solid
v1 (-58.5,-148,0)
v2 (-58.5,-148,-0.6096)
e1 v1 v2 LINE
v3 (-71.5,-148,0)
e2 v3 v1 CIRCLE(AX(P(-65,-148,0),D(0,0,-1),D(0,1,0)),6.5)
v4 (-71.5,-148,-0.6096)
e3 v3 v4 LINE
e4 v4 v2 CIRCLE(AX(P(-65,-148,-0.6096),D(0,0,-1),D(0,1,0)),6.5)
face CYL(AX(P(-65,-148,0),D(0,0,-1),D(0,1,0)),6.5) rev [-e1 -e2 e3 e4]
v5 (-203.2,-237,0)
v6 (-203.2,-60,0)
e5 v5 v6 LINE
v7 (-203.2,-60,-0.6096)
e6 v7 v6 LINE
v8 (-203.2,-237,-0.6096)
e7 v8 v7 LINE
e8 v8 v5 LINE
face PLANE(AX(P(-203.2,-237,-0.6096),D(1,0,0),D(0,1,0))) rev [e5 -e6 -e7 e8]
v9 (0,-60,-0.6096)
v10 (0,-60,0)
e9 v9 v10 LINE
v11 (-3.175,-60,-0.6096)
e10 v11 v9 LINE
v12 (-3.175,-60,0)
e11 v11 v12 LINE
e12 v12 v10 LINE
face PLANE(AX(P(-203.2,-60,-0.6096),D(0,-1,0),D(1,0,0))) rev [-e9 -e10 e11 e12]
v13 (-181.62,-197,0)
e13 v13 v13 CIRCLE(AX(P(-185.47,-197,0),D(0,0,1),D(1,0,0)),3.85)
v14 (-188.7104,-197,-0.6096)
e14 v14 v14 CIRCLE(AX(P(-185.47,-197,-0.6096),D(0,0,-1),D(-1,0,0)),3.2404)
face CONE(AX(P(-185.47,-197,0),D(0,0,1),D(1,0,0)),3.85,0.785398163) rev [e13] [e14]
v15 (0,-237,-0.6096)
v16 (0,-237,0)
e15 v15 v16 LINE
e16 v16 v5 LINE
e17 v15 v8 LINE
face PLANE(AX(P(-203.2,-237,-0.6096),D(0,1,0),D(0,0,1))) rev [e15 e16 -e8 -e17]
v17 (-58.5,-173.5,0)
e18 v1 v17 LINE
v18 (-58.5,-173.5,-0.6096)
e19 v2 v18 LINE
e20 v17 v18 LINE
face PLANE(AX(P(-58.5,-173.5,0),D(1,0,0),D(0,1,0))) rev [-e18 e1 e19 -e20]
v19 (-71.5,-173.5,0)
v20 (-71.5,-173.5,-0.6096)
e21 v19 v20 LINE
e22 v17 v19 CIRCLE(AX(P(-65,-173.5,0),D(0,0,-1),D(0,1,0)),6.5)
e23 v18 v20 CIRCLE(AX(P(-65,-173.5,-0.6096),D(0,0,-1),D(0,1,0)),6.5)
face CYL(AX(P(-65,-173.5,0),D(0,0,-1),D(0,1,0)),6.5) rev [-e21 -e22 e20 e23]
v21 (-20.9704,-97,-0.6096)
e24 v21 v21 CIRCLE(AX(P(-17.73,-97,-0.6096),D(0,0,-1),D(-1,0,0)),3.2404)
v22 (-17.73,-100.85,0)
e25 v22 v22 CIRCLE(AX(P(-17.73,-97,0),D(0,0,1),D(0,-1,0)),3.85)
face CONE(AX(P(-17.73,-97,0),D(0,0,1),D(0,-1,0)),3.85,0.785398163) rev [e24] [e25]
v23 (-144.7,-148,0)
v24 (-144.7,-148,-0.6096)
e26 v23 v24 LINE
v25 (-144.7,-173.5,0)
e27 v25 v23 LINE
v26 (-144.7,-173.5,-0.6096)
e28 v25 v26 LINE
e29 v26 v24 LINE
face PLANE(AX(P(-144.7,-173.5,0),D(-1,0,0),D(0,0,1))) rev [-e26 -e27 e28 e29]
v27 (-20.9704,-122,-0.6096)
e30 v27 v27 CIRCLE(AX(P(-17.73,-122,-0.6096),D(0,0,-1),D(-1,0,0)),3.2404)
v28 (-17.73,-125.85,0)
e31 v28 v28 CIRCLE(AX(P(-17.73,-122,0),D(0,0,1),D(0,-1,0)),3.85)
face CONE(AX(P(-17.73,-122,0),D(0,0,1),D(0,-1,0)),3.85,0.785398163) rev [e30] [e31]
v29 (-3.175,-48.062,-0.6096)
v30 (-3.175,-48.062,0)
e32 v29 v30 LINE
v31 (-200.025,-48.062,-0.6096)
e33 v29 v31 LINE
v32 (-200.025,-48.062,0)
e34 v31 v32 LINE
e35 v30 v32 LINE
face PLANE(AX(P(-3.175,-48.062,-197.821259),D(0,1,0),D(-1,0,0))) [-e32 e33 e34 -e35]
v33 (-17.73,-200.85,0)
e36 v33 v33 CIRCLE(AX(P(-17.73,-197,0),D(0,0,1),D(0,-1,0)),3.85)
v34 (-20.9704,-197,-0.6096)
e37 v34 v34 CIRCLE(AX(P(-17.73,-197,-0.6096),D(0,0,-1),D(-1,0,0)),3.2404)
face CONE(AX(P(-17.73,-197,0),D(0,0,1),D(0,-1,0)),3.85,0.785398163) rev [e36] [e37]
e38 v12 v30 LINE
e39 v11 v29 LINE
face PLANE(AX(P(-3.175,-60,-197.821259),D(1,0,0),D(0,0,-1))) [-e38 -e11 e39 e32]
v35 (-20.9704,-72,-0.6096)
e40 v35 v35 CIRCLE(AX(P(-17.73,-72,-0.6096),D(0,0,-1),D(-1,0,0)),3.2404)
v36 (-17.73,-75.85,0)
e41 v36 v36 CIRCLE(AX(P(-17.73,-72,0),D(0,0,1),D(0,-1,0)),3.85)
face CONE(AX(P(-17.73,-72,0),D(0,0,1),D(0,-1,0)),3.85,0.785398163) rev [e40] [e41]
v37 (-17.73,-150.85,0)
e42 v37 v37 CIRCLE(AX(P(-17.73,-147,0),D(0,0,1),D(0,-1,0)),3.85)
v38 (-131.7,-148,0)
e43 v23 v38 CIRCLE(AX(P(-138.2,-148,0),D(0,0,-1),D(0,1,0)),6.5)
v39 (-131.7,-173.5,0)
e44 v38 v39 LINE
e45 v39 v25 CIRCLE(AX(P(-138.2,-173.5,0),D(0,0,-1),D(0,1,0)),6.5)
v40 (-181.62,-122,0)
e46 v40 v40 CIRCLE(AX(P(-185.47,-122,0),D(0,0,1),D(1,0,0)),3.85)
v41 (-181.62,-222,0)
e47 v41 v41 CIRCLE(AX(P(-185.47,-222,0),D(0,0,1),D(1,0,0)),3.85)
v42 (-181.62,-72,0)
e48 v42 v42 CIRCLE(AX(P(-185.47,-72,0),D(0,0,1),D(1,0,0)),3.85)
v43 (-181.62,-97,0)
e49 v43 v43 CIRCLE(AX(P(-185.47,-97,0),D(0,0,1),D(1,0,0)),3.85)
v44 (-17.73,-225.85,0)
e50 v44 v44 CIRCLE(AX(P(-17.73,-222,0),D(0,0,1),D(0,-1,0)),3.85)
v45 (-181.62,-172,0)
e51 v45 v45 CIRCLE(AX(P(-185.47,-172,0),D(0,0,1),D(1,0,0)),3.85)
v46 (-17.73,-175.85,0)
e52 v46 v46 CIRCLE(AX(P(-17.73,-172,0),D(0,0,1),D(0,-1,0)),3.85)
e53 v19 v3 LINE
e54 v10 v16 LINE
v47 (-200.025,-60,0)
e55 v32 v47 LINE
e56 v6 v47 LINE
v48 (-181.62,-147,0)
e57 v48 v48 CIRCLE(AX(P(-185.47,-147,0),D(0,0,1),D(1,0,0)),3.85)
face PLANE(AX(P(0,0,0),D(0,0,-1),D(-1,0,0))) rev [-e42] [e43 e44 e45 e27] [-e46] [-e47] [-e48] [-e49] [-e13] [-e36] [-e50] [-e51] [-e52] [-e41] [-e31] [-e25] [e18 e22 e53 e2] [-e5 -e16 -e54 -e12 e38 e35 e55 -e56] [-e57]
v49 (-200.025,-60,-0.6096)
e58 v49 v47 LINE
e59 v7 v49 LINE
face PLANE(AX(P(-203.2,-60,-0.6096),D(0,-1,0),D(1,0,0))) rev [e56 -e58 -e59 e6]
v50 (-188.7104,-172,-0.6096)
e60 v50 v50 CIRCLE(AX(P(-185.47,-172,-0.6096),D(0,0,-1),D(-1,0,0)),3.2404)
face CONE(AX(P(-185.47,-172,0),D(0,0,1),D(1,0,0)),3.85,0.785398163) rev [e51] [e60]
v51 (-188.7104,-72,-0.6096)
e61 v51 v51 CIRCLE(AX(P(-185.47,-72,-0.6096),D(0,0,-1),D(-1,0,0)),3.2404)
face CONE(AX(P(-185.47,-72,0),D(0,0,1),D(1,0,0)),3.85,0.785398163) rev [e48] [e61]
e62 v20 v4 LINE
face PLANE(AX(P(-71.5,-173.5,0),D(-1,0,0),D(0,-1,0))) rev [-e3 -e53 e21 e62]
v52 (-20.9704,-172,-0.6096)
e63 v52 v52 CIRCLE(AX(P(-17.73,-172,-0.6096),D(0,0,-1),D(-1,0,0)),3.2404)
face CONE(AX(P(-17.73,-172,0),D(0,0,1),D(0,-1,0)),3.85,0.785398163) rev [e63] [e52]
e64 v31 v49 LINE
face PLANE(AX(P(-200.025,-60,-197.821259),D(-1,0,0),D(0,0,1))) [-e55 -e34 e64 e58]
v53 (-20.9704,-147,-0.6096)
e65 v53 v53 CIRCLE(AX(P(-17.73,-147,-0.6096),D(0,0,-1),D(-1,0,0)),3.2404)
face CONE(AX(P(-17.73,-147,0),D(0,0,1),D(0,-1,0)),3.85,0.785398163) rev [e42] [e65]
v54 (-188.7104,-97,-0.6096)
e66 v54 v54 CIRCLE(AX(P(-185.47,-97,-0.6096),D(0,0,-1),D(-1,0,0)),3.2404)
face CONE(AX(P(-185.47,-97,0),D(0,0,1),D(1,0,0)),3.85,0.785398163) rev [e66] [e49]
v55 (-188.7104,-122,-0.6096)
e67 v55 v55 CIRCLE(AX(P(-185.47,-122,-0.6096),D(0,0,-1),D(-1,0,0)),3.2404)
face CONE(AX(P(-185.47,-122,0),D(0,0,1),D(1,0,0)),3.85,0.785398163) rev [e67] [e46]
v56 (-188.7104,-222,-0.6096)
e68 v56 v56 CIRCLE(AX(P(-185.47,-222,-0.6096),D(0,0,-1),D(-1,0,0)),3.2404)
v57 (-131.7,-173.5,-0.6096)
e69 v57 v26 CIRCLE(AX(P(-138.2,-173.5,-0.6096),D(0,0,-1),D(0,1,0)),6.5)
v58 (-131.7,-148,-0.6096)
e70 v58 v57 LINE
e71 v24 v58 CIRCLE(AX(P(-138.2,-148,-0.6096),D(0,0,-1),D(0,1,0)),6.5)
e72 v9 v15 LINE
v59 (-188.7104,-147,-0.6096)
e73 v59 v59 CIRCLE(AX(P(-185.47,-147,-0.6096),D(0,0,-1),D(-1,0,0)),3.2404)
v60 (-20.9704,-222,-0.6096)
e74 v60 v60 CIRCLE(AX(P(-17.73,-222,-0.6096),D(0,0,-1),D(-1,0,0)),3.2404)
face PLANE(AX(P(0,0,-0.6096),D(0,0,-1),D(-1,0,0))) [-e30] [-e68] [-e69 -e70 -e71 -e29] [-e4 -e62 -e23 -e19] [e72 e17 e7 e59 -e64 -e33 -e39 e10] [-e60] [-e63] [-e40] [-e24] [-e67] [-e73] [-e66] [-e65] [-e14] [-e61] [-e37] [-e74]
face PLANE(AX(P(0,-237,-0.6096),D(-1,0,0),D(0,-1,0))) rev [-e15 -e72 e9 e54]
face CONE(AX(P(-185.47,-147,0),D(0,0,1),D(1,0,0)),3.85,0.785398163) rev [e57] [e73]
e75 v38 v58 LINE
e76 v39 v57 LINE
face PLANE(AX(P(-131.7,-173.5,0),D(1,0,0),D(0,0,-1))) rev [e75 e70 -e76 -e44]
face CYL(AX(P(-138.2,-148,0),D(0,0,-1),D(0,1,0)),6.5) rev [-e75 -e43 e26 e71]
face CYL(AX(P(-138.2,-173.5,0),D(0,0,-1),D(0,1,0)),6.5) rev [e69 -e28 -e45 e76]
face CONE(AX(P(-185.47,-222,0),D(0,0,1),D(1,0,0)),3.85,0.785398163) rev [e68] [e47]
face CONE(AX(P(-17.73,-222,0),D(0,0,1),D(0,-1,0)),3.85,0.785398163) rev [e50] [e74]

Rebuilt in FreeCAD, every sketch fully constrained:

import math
import FreeCAD as App
import Part
import Sketcher
from FreeCAD import Vector
Q = App.Units.Quantity


def add_polygon(sketch, points):
    """Adds a closed chain of lines whose ends are joined by coincident constraints."""
    first, n = sketch.GeometryCount, len(points)
    for a, b in zip(points, points[1:] + points[:1]):
        sketch.addGeometry(Part.LineSegment(App.Vector(*a, 0), App.Vector(*b, 0)), False)
    for i in range(n):
        sketch.addConstraint(Sketcher.Constraint("Coincident", first + i, 2, first + (i + 1) % n, 1))

doc = App.newDocument("Part")
params = doc.addObject("Spreadsheet::Sheet", "Params")
for row, (alias, value) in enumerate([
    ("sketch1_height", "177 mm"),
    ("sketch1_width", "203.2 mm"),
    ("pad1_length", "0.6096 mm"),
    ("sketch2_radius", "6.5 mm"),
    ("sketch2_height", "25.5 mm"),
    ("sketch3_width", "196.85 mm"),
    ("pad2_length", "12 mm"),
    ("sketch4_width", "196.85 mm"),
    ("pad3_length", "0.6096 mm"),
    ("sketch5_width", "196.85 mm"),
    ("pocket2_length", "12 mm"),
    ("sketch6_width", "1.7 mm"),
    ("sketch6_width2", "3.85 mm"),
    ("groove_angle", "360 deg"),
    ("linearpattern_pitch", "25 mm"),
    ("linearpattern2_pitch", "50 mm"),
    ("linearpattern3_pitch", "75 mm"),
    ("linearpattern4_pitch", "100 mm"),
    ("linearpattern5_pitch", "125 mm"),
    ("linearpattern6_pitch", "150 mm"),
    ("sketch7_width", "1.7 mm"),
    ("sketch7_width2", "3.85 mm"),
    ("groove2_angle", "360 deg"),
    ("sketch8_width", "1.7 mm"),
    ("sketch8_width2", "3.85 mm"),
    ("groove3_angle", "360 deg"),
    ("sketch9_width", "1.7 mm"),
    ("sketch9_width2", "3.85 mm"),
    ("groove4_angle", "360 deg"),
    ("sketch10_width", "1.7 mm"),
    ("sketch10_width2", "3.85 mm"),
    ("groove5_angle", "360 deg"),
    ("sketch11_width", "1.7 mm"),
    ("sketch11_width2", "3.85 mm"),
    ("groove6_angle", "360 deg"),
    ("sketch12_width", "1.7 mm"),
    ("sketch12_width2", "3.85 mm"),
    ("groove7_angle", "360 deg"),
], start=1):
    params.set(f"A{row}", alias)
    params.set(f"B{row}", "=" + value)
    params.setAlias(f"B{row}", alias)

body = doc.addObject("PartDesign::Body", "Body")

# Sketch on XY plane
sketch1 = body.newObject("Sketcher::SketchObject", "Sketch")
sketch1.AttachmentSupport = (doc.getObject("XY_Plane"), [""])
sketch1.MapMode = "FlatFace"
add_polygon(sketch1, [(-203, -237), (-203, -60), (0, -60), (0, -237)])  # lines 0-3
sketch1.addConstraint(Sketcher.Constraint("Vertical", 0))
sketch1.addConstraint(Sketcher.Constraint("Horizontal", 1))
sketch1.addConstraint(Sketcher.Constraint("Vertical", 2))
sketch1.addConstraint(Sketcher.Constraint("Horizontal", 3))
sketch1.addConstraint(Sketcher.Constraint("PointOnObject", 1, 2, -2))
sketch1.addConstraint(Sketcher.Constraint("DistanceY", 0, 1, 0, 2, 177.0))
sketch1.addConstraint(Sketcher.Constraint("DistanceX", 1, 1, 1, 2, 203.2))
sketch1.addConstraint(Sketcher.Constraint("DistanceY", 0, 2, -1, 1, 60.0))
sketch1.setExpression("Constraints[9]", "Params.sketch1_height")
sketch1.setExpression("Constraints[10]", "Params.sketch1_width")
pad1 = body.newObject("PartDesign::Pad", "Pad")
pad1.Profile = sketch1
pad1.setExpression("Length", "Params.pad1_length")
pad1.Reversed = True

# Sketch on XY plane
sketch2 = body.newObject("Sketcher::SketchObject", "Sketch001")
sketch2.AttachmentSupport = (doc.getObject("XY_Plane"), [""])
sketch2.MapMode = "FlatFace"
sketch2.AttachmentOffset = App.Placement(Vector(0, 0, -0.6096), App.Rotation())
sketch2.addGeometry(Part.LineSegment(Vector(-132, -148, 0), Vector(-132, -174, 0)), False)
sketch2.addGeometry(Part.ArcOfCircle(Part.Circle(Vector(-138, -174, 0), Vector(0, 0, 1), 6), math.radians(180), math.radians(360)), False)
sketch2.addGeometry(Part.LineSegment(Vector(-145, -174, 0), Vector(-145, -148, 0)), False)
sketch2.addGeometry(Part.ArcOfCircle(Part.Circle(Vector(-138, -148, 0), Vector(0, 0, 1), 6), math.radians(0), math.radians(180)), False)
sketch2.addGeometry(Part.LineSegment(Vector(-58, -148, 0), Vector(-58, -174, 0)), False)
sketch2.addGeometry(Part.ArcOfCircle(Part.Circle(Vector(-65, -174, 0), Vector(0, 0, 1), 6), math.radians(180), math.radians(360)), False)
sketch2.addGeometry(Part.LineSegment(Vector(-72, -174, 0), Vector(-72, -148, 0)), False)
sketch2.addGeometry(Part.ArcOfCircle(Part.Circle(Vector(-65, -148, 0), Vector(0, 0, 1), 6), math.radians(0), math.radians(180)), False)
sketch2.addConstraint(Sketcher.Constraint("Tangent", 0, 2, 1, 2))
sketch2.addConstraint(Sketcher.Constraint("Tangent", 1, 1, 2, 1))
sketch2.addConstraint(Sketcher.Constraint("Tangent", 2, 2, 3, 2))
sketch2.addConstraint(Sketcher.Constraint("Tangent", 3, 1, 0, 1))
sketch2.addConstraint(Sketcher.Constraint("Tangent", 4, 2, 5, 2))
sketch2.addConstraint(Sketcher.Constraint("Tangent", 5, 1, 6, 1))
sketch2.addConstraint(Sketcher.Constraint("Tangent", 6, 2, 7, 2))
sketch2.addConstraint(Sketcher.Constraint("Tangent", 7, 1, 4, 1))
sketch2.addConstraint(Sketcher.Constraint("Vertical", 0))
sketch2.addConstraint(Sketcher.Constraint("Vertical", 2))
sketch2.addConstraint(Sketcher.Constraint("Vertical", 4))
sketch2.addConstraint(Sketcher.Constraint("Vertical", 6))
sketch2.addConstraint(Sketcher.Constraint("Equal", 3, 5))
sketch2.addConstraint(Sketcher.Constraint("Horizontal", 1, 3, 5, 3))
sketch2.addConstraint(Sketcher.Constraint("Horizontal", 3, 3, 7, 3))
sketch2.addConstraint(Sketcher.Constraint("Radius", 1, 6.5))
sketch2.addConstraint(Sketcher.Constraint("DistanceY", 0, 2, 0, 1, 25.5))
sketch2.addConstraint(Sketcher.Constraint("DistanceY", 3, 3, -1, 1, 148.0))
sketch2.addConstraint(Sketcher.Constraint("DistanceX", 5, 3, -1, 1, 65.0))
sketch2.addConstraint(Sketcher.Constraint("DistanceX", 1, 3, -1, 1, 138.2))
sketch2.setExpression("Constraints[15]", "Params.sketch2_radius")
sketch2.setExpression("Constraints[16]", "Params.sketch2_height")
pocket1 = body.newObject("PartDesign::Pocket", "Pocket")
pocket1.Profile = sketch2
pocket1.Type = "ThroughAll"
pocket1.Reversed = True

# Sketch on XY plane
sketch3 = body.newObject("Sketcher::SketchObject", "Sketch002")
sketch3.AttachmentSupport = (doc.getObject("XY_Plane"), [""])
sketch3.MapMode = "FlatFace"
add_polygon(sketch3, [(-200, -60), (-200, -60.6), (-3.2, -60.6), (-3.2, -60)])  # lines 0-3
sketch3.addConstraint(Sketcher.Constraint("Vertical", 0))
sketch3.addConstraint(Sketcher.Constraint("Horizontal", 1))
sketch3.addConstraint(Sketcher.Constraint("Vertical", 2))
sketch3.addConstraint(Sketcher.Constraint("Horizontal", 3))
sketch3.addConstraint(Sketcher.Constraint("DistanceY", 2, 2, -1, 1, 60.0))
sketch3.addConstraint(Sketcher.Constraint("DistanceX", 1, 1, 1, 2, 196.85))
sketch3.addConstraint(Sketcher.Constraint("DistanceY", 0, 2, 0, 1, 0.6096))
sketch3.addConstraint(Sketcher.Constraint("DistanceX", 0, 2, -1, 1, 200.025))
sketch3.setExpression("Constraints[9]", "Params.sketch3_width")
pad2 = body.newObject("PartDesign::Pad", "Pad001")
pad2.Profile = sketch3
pad2.setExpression("Length", "Params.pad2_length")

# Sketch on XY plane
sketch4 = body.newObject("Sketcher::SketchObject", "Sketch003")
sketch4.AttachmentSupport = (doc.getObject("XY_Plane"), [""])
sketch4.MapMode = "FlatFace"
add_polygon(sketch4, [(-200, -48), (-200, -60), (-3, -60), (-3, -48)])  # lines 0-3
sketch4.addConstraint(Sketcher.Constraint("Vertical", 0))
sketch4.addConstraint(Sketcher.Constraint("Horizontal", 1))
sketch4.addConstraint(Sketcher.Constraint("Vertical", 2))
sketch4.addConstraint(Sketcher.Constraint("Horizontal", 3))
sketch4.addConstraint(Sketcher.Constraint("DistanceY", 0, 2, -1, 1, 60.0))
sketch4.addConstraint(Sketcher.Constraint("DistanceX", 1, 1, 1, 2, 196.85))
sketch4.addConstraint(Sketcher.Constraint("DistanceY", 0, 2, 0, 1, 11.938))
sketch4.addConstraint(Sketcher.Constraint("DistanceX", 0, 2, -1, 1, 200.025))
sketch4.setExpression("Constraints[9]", "Params.sketch4_width")
pad3 = body.newObject("PartDesign::Pad", "Pad002")
pad3.Profile = sketch4
pad3.setExpression("Length", "Params.pad3_length")
pad3.Reversed = True

# Sketch on XY plane
sketch5 = body.newObject("Sketcher::SketchObject", "Sketch004")
sketch5.AttachmentSupport = (doc.getObject("XY_Plane"), [""])
sketch5.MapMode = "FlatFace"
sketch5.AttachmentOffset = App.Placement(Vector(0, 0, 12), App.Rotation())
add_polygon(sketch5, [(-200, -60), (-200, -60.6), (-3.2, -60.6), (-3.2, -60)])  # lines 0-3
sketch5.addConstraint(Sketcher.Constraint("Vertical", 0))
sketch5.addConstraint(Sketcher.Constraint("Horizontal", 1))
sketch5.addConstraint(Sketcher.Constraint("Vertical", 2))
sketch5.addConstraint(Sketcher.Constraint("Horizontal", 3))
sketch5.addConstraint(Sketcher.Constraint("DistanceY", 2, 2, -1, 1, 60.0))
sketch5.addConstraint(Sketcher.Constraint("DistanceX", 1, 1, 1, 2, 196.85))
sketch5.addConstraint(Sketcher.Constraint("DistanceY", 0, 2, 0, 1, 0.6096))
sketch5.addConstraint(Sketcher.Constraint("DistanceX", 0, 2, -1, 1, 200.025))
sketch5.setExpression("Constraints[9]", "Params.sketch5_width")
pocket2 = body.newObject("PartDesign::Pocket", "Pocket001")
pocket2.Profile = sketch5
pocket2.setExpression("Length", "Params.pocket2_length")

# Sketch on YZ plane
sketch6 = body.newObject("Sketcher::SketchObject", "Sketch005")
sketch6.AttachmentSupport = (doc.getObject("YZ_Plane"), [""])
sketch6.MapMode = "FlatFace"
sketch6.AttachmentOffset = App.Placement(Vector(0, 0, -185.47), App.Rotation())
add_polygon(sketch6, [(-222, -0.6), (-222, 0), (-225.8, 0), (-223.7, -2.1), (-223.7, -0.6)])  # lines 0-4
sketch6.addGeometry(Part.LineSegment(Vector(-222, 0, 0), Vector(-222, -2.1, 0)), True)  # axis
sketch6.addConstraint(Sketcher.Constraint("Vertical", 0))
sketch6.addConstraint(Sketcher.Constraint("Horizontal", 1))
sketch6.addConstraint(Sketcher.Constraint("Vertical", 3))
sketch6.addConstraint(Sketcher.Constraint("Horizontal", 4))
sketch6.addConstraint(Sketcher.Constraint("Vertical", 5))
sketch6.addConstraint(Sketcher.Constraint("Coincident", 5, 1, 0, 2))
sketch6.addConstraint(Sketcher.Constraint("PointOnObject", 0, 2, -1))
sketch6.addConstraint(Sketcher.Constraint("Horizontal", 2, 2, 5, 2))
sketch6.addConstraint(Sketcher.Constraint("Angle", 2, Q("-45 deg")))
sketch6.addConstraint(Sketcher.Constraint("DistanceX", 4, 1, 4, 2, 1.7))
sketch6.addConstraint(Sketcher.Constraint("DistanceX", 0, 2, -1, 1, 222.0))
sketch6.addConstraint(Sketcher.Constraint("DistanceX", 1, 2, 1, 1, 3.85))
sketch6.addConstraint(Sketcher.Constraint("DistanceY", 0, 1, 0, 2, 0.6096))
sketch6.setExpression("Constraints[14]", "Params.sketch6_width")
sketch6.setExpression("Constraints[16]", "Params.sketch6_width2")
groove = body.newObject("PartDesign::Groove", "Groove")
groove.Profile = sketch6
groove.ReferenceAxis = (sketch6, ["Axis0"])
groove.setExpression("Angle", "Params.groove_angle")
doc.recompute()

linearpattern = body.newObject("PartDesign::LinearPattern", "LinearPattern")
linearpattern.Originals = [groove]
linearpattern.Direction = (doc.getObject("Y_Axis"), [""])
linearpattern.Mode = "offset"
linearpattern.setExpression("Offset", "Params.linearpattern_pitch")
linearpattern.Occurrences = 2
body.Tip = linearpattern
doc.recompute()

linearpattern2 = body.newObject("PartDesign::LinearPattern", "LinearPattern001")
linearpattern2.Originals = [groove]
linearpattern2.Direction = (doc.getObject("Y_Axis"), [""])
linearpattern2.Mode = "offset"
linearpattern2.setExpression("Offset", "Params.linearpattern2_pitch")
linearpattern2.Occurrences = 2
body.Tip = linearpattern2
doc.recompute()

linearpattern3 = body.newObject("PartDesign::LinearPattern", "LinearPattern002")
linearpattern3.Originals = [groove]
linearpattern3.Direction = (doc.getObject("Y_Axis"), [""])
linearpattern3.Mode = "offset"
linearpattern3.setExpression("Offset", "Params.linearpattern3_pitch")
linearpattern3.Occurrences = 2
body.Tip = linearpattern3
doc.recompute()

linearpattern4 = body.newObject("PartDesign::LinearPattern", "LinearPattern003")
linearpattern4.Originals = [groove]
linearpattern4.Direction = (doc.getObject("Y_Axis"), [""])
linearpattern4.Mode = "offset"
linearpattern4.setExpression("Offset", "Params.linearpattern4_pitch")
linearpattern4.Occurrences = 2
body.Tip = linearpattern4
doc.recompute()

linearpattern5 = body.newObject("PartDesign::LinearPattern", "LinearPattern004")
linearpattern5.Originals = [groove]
linearpattern5.Direction = (doc.getObject("Y_Axis"), [""])
linearpattern5.Mode = "offset"
linearpattern5.setExpression("Offset", "Params.linearpattern5_pitch")
linearpattern5.Occurrences = 2
body.Tip = linearpattern5
doc.recompute()

linearpattern6 = body.newObject("PartDesign::LinearPattern", "LinearPattern005")
linearpattern6.Originals = [groove]
linearpattern6.Direction = (doc.getObject("Y_Axis"), [""])
linearpattern6.Mode = "offset"
linearpattern6.setExpression("Offset", "Params.linearpattern6_pitch")
linearpattern6.Occurrences = 2
body.Tip = linearpattern6
doc.recompute()

datumplane = body.newObject("PartDesign::Plane", "DatumPlane")
datumplane.AttachmentSupport = (doc.getObject("YZ_Plane"), [""])
datumplane.MapMode = "FlatFace"
datumplane.AttachmentOffset = App.Placement(Vector(0, 0, -101.6), App.Rotation())
mirrored = body.newObject("PartDesign::Mirrored", "Mirrored")
mirrored.Originals = [groove]
mirrored.MirrorPlane = (datumplane, [""])
body.Tip = mirrored

# Sketch on YZ plane
sketch7 = body.newObject("Sketcher::SketchObject", "Sketch006")
sketch7.AttachmentSupport = (doc.getObject("YZ_Plane"), [""])
sketch7.MapMode = "FlatFace"
sketch7.AttachmentOffset = App.Placement(Vector(0, 0, -17.73), App.Rotation())
add_polygon(sketch7, [(-197, 0), (-197, -0.6), (-198.7, -0.6), (-198.7, -2.1), (-200.9, 0)])  # lines 0-4
sketch7.addGeometry(Part.LineSegment(Vector(-197, -2.1, 0), Vector(-197, 0, 0)), True)  # axis
sketch7.addConstraint(Sketcher.Constraint("Vertical", 0))
sketch7.addConstraint(Sketcher.Constraint("Horizontal", 1))
sketch7.addConstraint(Sketcher.Constraint("Vertical", 2))
sketch7.addConstraint(Sketcher.Constraint("Horizontal", 4))
sketch7.addConstraint(Sketcher.Constraint("Vertical", 5))
sketch7.addConstraint(Sketcher.Constraint("Coincident", 5, 2, 4, 2))
sketch7.addConstraint(Sketcher.Constraint("PointOnObject", 3, 2, -1))
sketch7.addConstraint(Sketcher.Constraint("Horizontal", 2, 2, 5, 1))
sketch7.addConstraint(Sketcher.Constraint("Angle", 3, Q("135 deg")))
sketch7.addConstraint(Sketcher.Constraint("DistanceX", 1, 2, 1, 1, 1.7))
sketch7.addConstraint(Sketcher.Constraint("DistanceX", 0, 2, -1, 1, 197.0))
sketch7.addConstraint(Sketcher.Constraint("DistanceX", 4, 1, 4, 2, 3.85))
sketch7.addConstraint(Sketcher.Constraint("DistanceY", 0, 2, 0, 1, 0.6096))
sketch7.setExpression("Constraints[14]", "Params.sketch7_width")
sketch7.setExpression("Constraints[16]", "Params.sketch7_width2")
groove2 = body.newObject("PartDesign::Groove", "Groove001")
groove2.Profile = sketch7
groove2.ReferenceAxis = (sketch7, ["Axis0"])
groove2.setExpression("Angle", "Params.groove2_angle")

# Sketch on YZ plane
sketch8 = body.newObject("Sketcher::SketchObject", "Sketch007")
sketch8.AttachmentSupport = (doc.getObject("YZ_Plane"), [""])
sketch8.MapMode = "FlatFace"
sketch8.AttachmentOffset = App.Placement(Vector(0, 0, -17.73), App.Rotation())
add_polygon(sketch8, [(-172, 0), (-172, -0.6), (-173.7, -0.6), (-173.7, -2.1), (-175.9, 0)])  # lines 0-4
sketch8.addGeometry(Part.LineSegment(Vector(-172, -2.1, 0), Vector(-172, 0, 0)), True)  # axis
sketch8.addConstraint(Sketcher.Constraint("Vertical", 0))
sketch8.addConstraint(Sketcher.Constraint("Horizontal", 1))
sketch8.addConstraint(Sketcher.Constraint("Vertical", 2))
sketch8.addConstraint(Sketcher.Constraint("Horizontal", 4))
sketch8.addConstraint(Sketcher.Constraint("Vertical", 5))
sketch8.addConstraint(Sketcher.Constraint("Coincident", 5, 2, 4, 2))
sketch8.addConstraint(Sketcher.Constraint("PointOnObject", 3, 2, -1))
sketch8.addConstraint(Sketcher.Constraint("Horizontal", 2, 2, 5, 1))
sketch8.addConstraint(Sketcher.Constraint("Angle", 3, Q("135 deg")))
sketch8.addConstraint(Sketcher.Constraint("DistanceX", 1, 2, 1, 1, 1.7))
sketch8.addConstraint(Sketcher.Constraint("DistanceX", 0, 2, -1, 1, 172.0))
sketch8.addConstraint(Sketcher.Constraint("DistanceX", 4, 1, 4, 2, 3.85))
sketch8.addConstraint(Sketcher.Constraint("DistanceY", 0, 2, 0, 1, 0.6096))
sketch8.setExpression("Constraints[14]", "Params.sketch8_width")
sketch8.setExpression("Constraints[16]", "Params.sketch8_width2")
groove3 = body.newObject("PartDesign::Groove", "Groove002")
groove3.Profile = sketch8
groove3.ReferenceAxis = (sketch8, ["Axis0"])
groove3.setExpression("Angle", "Params.groove3_angle")

# Sketch on YZ plane
sketch9 = body.newObject("Sketcher::SketchObject", "Sketch008")
sketch9.AttachmentSupport = (doc.getObject("YZ_Plane"), [""])
sketch9.MapMode = "FlatFace"
sketch9.AttachmentOffset = App.Placement(Vector(0, 0, -17.73), App.Rotation())
add_polygon(sketch9, [(-147, 0), (-147, -0.6), (-148.7, -0.6), (-148.7, -2.1), (-150.9, 0)])  # lines 0-4
sketch9.addGeometry(Part.LineSegment(Vector(-147, -2.1, 0), Vector(-147, 0, 0)), True)  # axis
sketch9.addConstraint(Sketcher.Constraint("Vertical", 0))
sketch9.addConstraint(Sketcher.Constraint("Horizontal", 1))
sketch9.addConstraint(Sketcher.Constraint("Vertical", 2))
sketch9.addConstraint(Sketcher.Constraint("Horizontal", 4))
sketch9.addConstraint(Sketcher.Constraint("Vertical", 5))
sketch9.addConstraint(Sketcher.Constraint("Coincident", 5, 2, 4, 2))
sketch9.addConstraint(Sketcher.Constraint("PointOnObject", 3, 2, -1))
sketch9.addConstraint(Sketcher.Constraint("Horizontal", 2, 2, 5, 1))
sketch9.addConstraint(Sketcher.Constraint("Angle", 3, Q("135 deg")))
sketch9.addConstraint(Sketcher.Constraint("DistanceX", 1, 2, 1, 1, 1.7))
sketch9.addConstraint(Sketcher.Constraint("DistanceX", 0, 2, -1, 1, 147.0))
sketch9.addConstraint(Sketcher.Constraint("DistanceX", 4, 1, 4, 2, 3.85))
sketch9.addConstraint(Sketcher.Constraint("DistanceY", 0, 2, 0, 1, 0.6096))
sketch9.setExpression("Constraints[14]", "Params.sketch9_width")
sketch9.setExpression("Constraints[16]", "Params.sketch9_width2")
groove4 = body.newObject("PartDesign::Groove", "Groove003")
groove4.Profile = sketch9
groove4.ReferenceAxis = (sketch9, ["Axis0"])
groove4.setExpression("Angle", "Params.groove4_angle")

# Sketch on YZ plane
sketch10 = body.newObject("Sketcher::SketchObject", "Sketch009")
sketch10.AttachmentSupport = (doc.getObject("YZ_Plane"), [""])
sketch10.MapMode = "FlatFace"
sketch10.AttachmentOffset = App.Placement(Vector(0, 0, -17.73), App.Rotation())
add_polygon(sketch10, [(-122, 0), (-122, -0.6), (-123.7, -0.6), (-123.7, -2.1), (-125.9, 0)])  # lines 0-4
sketch10.addGeometry(Part.LineSegment(Vector(-122, -2.1, 0), Vector(-122, 0, 0)), True)  # axis
sketch10.addConstraint(Sketcher.Constraint("Vertical", 0))
sketch10.addConstraint(Sketcher.Constraint("Horizontal", 1))
sketch10.addConstraint(Sketcher.Constraint("Vertical", 2))
sketch10.addConstraint(Sketcher.Constraint("Horizontal", 4))
sketch10.addConstraint(Sketcher.Constraint("Vertical", 5))
sketch10.addConstraint(Sketcher.Constraint("Coincident", 5, 2, 4, 2))
sketch10.addConstraint(Sketcher.Constraint("PointOnObject", 3, 2, -1))
sketch10.addConstraint(Sketcher.Constraint("Horizontal", 2, 2, 5, 1))
sketch10.addConstraint(Sketcher.Constraint("Angle", 3, Q("135 deg")))
sketch10.addConstraint(Sketcher.Constraint("DistanceX", 1, 2, 1, 1, 1.7))
sketch10.addConstraint(Sketcher.Constraint("DistanceX", 0, 2, -1, 1, 122.0))
sketch10.addConstraint(Sketcher.Constraint("DistanceX", 4, 1, 4, 2, 3.85))
sketch10.addConstraint(Sketcher.Constraint("DistanceY", 0, 2, 0, 1, 0.6096))
sketch10.setExpression("Constraints[14]", "Params.sketch10_width")
sketch10.setExpression("Constraints[16]", "Params.sketch10_width2")
groove5 = body.newObject("PartDesign::Groove", "Groove004")
groove5.Profile = sketch10
groove5.ReferenceAxis = (sketch10, ["Axis0"])
groove5.setExpression("Angle", "Params.groove5_angle")

# Sketch on YZ plane
sketch11 = body.newObject("Sketcher::SketchObject", "Sketch010")
sketch11.AttachmentSupport = (doc.getObject("YZ_Plane"), [""])
sketch11.MapMode = "FlatFace"
sketch11.AttachmentOffset = App.Placement(Vector(0, 0, -17.73), App.Rotation())
add_polygon(sketch11, [(-97, 0), (-97, -0.6), (-98.7, -0.6), (-98.7, -2.1), (-100.9, 0)])  # lines 0-4
sketch11.addGeometry(Part.LineSegment(Vector(-97, -2.1, 0), Vector(-97, 0, 0)), True)  # axis
sketch11.addConstraint(Sketcher.Constraint("Vertical", 0))
sketch11.addConstraint(Sketcher.Constraint("Horizontal", 1))
sketch11.addConstraint(Sketcher.Constraint("Vertical", 2))
sketch11.addConstraint(Sketcher.Constraint("Horizontal", 4))
sketch11.addConstraint(Sketcher.Constraint("Vertical", 5))
sketch11.addConstraint(Sketcher.Constraint("Coincident", 5, 2, 4, 2))
sketch11.addConstraint(Sketcher.Constraint("PointOnObject", 3, 2, -1))
sketch11.addConstraint(Sketcher.Constraint("Horizontal", 2, 2, 5, 1))
sketch11.addConstraint(Sketcher.Constraint("Angle", 3, Q("135 deg")))
sketch11.addConstraint(Sketcher.Constraint("DistanceX", 1, 2, 1, 1, 1.7))
sketch11.addConstraint(Sketcher.Constraint("DistanceX", 0, 2, -1, 1, 97.0))
sketch11.addConstraint(Sketcher.Constraint("DistanceX", 4, 1, 4, 2, 3.85))
sketch11.addConstraint(Sketcher.Constraint("DistanceY", 0, 2, 0, 1, 0.6096))
sketch11.setExpression("Constraints[14]", "Params.sketch11_width")
sketch11.setExpression("Constraints[16]", "Params.sketch11_width2")
groove6 = body.newObject("PartDesign::Groove", "Groove005")
groove6.Profile = sketch11
groove6.ReferenceAxis = (sketch11, ["Axis0"])
groove6.setExpression("Angle", "Params.groove6_angle")

# Sketch on YZ plane
sketch12 = body.newObject("Sketcher::SketchObject", "Sketch011")
sketch12.AttachmentSupport = (doc.getObject("YZ_Plane"), [""])
sketch12.MapMode = "FlatFace"
sketch12.AttachmentOffset = App.Placement(Vector(0, 0, -17.73), App.Rotation())
add_polygon(sketch12, [(-72, 0), (-72, -0.6), (-73.7, -0.6), (-73.7, -2.1), (-75.9, 0)])  # lines 0-4
sketch12.addGeometry(Part.LineSegment(Vector(-72, -2.1, 0), Vector(-72, 0, 0)), True)  # axis
sketch12.addConstraint(Sketcher.Constraint("Vertical", 0))
sketch12.addConstraint(Sketcher.Constraint("Horizontal", 1))
sketch12.addConstraint(Sketcher.Constraint("Vertical", 2))
sketch12.addConstraint(Sketcher.Constraint("Horizontal", 4))
sketch12.addConstraint(Sketcher.Constraint("Vertical", 5))
sketch12.addConstraint(Sketcher.Constraint("Coincident", 5, 2, 4, 2))
sketch12.addConstraint(Sketcher.Constraint("PointOnObject", 3, 2, -1))
sketch12.addConstraint(Sketcher.Constraint("Horizontal", 2, 2, 5, 1))
sketch12.addConstraint(Sketcher.Constraint("Angle", 3, Q("135 deg")))
sketch12.addConstraint(Sketcher.Constraint("DistanceX", 1, 2, 1, 1, 1.7))
sketch12.addConstraint(Sketcher.Constraint("DistanceX", 0, 2, -1, 1, 72.0))
sketch12.addConstraint(Sketcher.Constraint("DistanceX", 4, 1, 4, 2, 3.85))
sketch12.addConstraint(Sketcher.Constraint("DistanceY", 0, 2, 0, 1, 0.6096))
sketch12.setExpression("Constraints[14]", "Params.sketch12_width")
sketch12.setExpression("Constraints[16]", "Params.sketch12_width2")
groove7 = body.newObject("PartDesign::Groove", "Groove006")
groove7.Profile = sketch12
groove7.ReferenceAxis = (sketch12, ["Axis0"])
groove7.setExpression("Angle", "Params.groove7_angle")

doc.recompute()
